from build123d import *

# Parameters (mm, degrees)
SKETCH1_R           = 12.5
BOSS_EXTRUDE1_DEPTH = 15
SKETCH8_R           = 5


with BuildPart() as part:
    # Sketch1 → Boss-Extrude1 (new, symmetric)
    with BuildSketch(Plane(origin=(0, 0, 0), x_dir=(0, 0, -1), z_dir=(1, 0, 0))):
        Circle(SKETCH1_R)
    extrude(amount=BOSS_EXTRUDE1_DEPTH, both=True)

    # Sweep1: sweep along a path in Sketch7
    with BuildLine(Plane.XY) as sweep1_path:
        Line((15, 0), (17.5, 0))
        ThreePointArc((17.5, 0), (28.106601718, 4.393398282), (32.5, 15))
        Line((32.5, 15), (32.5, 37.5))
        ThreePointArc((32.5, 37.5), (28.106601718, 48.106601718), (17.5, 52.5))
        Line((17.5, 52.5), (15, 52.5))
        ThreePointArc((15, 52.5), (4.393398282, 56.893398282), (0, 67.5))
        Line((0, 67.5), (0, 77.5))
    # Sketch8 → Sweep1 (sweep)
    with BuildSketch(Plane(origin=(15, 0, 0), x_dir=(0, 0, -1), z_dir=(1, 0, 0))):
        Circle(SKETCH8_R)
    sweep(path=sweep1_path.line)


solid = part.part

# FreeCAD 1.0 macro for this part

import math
import FreeCAD as App
import Part
import Sketcher

doc = App.newDocument("Part")
body = doc.addObject("PartDesign::Body", "Body")

# Sketch on YZ plane
sketch1 = body.newObject("Sketcher::SketchObject", "Sketch")
sketch1.AttachmentSupport = (doc.getObject("YZ_Plane"), [""])
sketch1.MapMode = "FlatFace"
sketch1.addGeometry(Part.Circle(App.Vector(0, 0, 0), App.Vector(0, 0, 1), 12), False)
sketch1.addConstraint(Sketcher.Constraint("Coincident", 0, 3, -1, 1))
sketch1.addConstraint(Sketcher.Constraint("Diameter", 0, 25.0))
pad1 = body.newObject("PartDesign::Pad", "Pad")
pad1.Profile = sketch1
pad1.Length = 30
pad1.Midplane = True

# Sketch on YZ plane
sketch2 = body.newObject("Sketcher::SketchObject", "Sketch001")
sketch2.AttachmentSupport = (doc.getObject("YZ_Plane"), [""])
sketch2.MapMode = "FlatFace"
sketch2.AttachmentOffset = App.Placement(App.Vector(0, 0, 15), App.Rotation())
sketch2.addGeometry(Part.Circle(App.Vector(0, 0, 0), App.Vector(0, 0, 1), 5), False)
sketch2.addConstraint(Sketcher.Constraint("Coincident", 0, 3, -1, 1))
sketch2.addConstraint(Sketcher.Constraint("Diameter", 0, 10.0))

# Sketch on XY plane
sketch3 = body.newObject("Sketcher::SketchObject", "Sketch002")
sketch3.AttachmentSupport = (doc.getObject("XY_Plane"), [""])
sketch3.MapMode = "FlatFace"
sketch3.addGeometry(Part.LineSegment(App.Vector(15, 0, 0), App.Vector(17.5, 0, 0)), False)
sketch3.addGeometry(Part.ArcOfCircle(Part.Circle(App.Vector(17.5, 15, 0), App.Vector(0, 0, 1), 15), math.radians(-90), math.radians(0)), False)
sketch3.addGeometry(Part.LineSegment(App.Vector(32.5, 15, 0), App.Vector(32.5, 37.5, 0)), False)
sketch3.addGeometry(Part.ArcOfCircle(Part.Circle(App.Vector(17.5, 37.5, 0), App.Vector(0, 0, 1), 15), math.radians(0), math.radians(90)), False)
sketch3.addGeometry(Part.LineSegment(App.Vector(17.5, 52.5, 0), App.Vector(15, 52.5, 0)), False)
sketch3.addGeometry(Part.ArcOfCircle(Part.Circle(App.Vector(15, 67.5, 0), App.Vector(0, 0, 1), 15), math.radians(180), math.radians(270)), False)
sketch3.addGeometry(Part.LineSegment(App.Vector(0, 67.5, 0), App.Vector(0, 77.5, 0)), False)
sketch3.addConstraint(Sketcher.Constraint("Tangent", 0, 2, 1, 1))
sketch3.addConstraint(Sketcher.Constraint("Tangent", 1, 2, 2, 1))
sketch3.addConstraint(Sketcher.Constraint("Tangent", 2, 2, 3, 1))
sketch3.addConstraint(Sketcher.Constraint("Tangent", 3, 2, 4, 1))
sketch3.addConstraint(Sketcher.Constraint("Tangent", 4, 2, 5, 2))
sketch3.addConstraint(Sketcher.Constraint("Tangent", 5, 1, 6, 1))
sketch3.addConstraint(Sketcher.Constraint("Horizontal", 0))
sketch3.addConstraint(Sketcher.Constraint("Vertical", 2))
sketch3.addConstraint(Sketcher.Constraint("Horizontal", 4))
sketch3.addConstraint(Sketcher.Constraint("Vertical", 6))
sketch3.addConstraint(Sketcher.Constraint("Equal", 1, 3))
sketch3.addConstraint(Sketcher.Constraint("Equal", 3, 5))
sketch3.addConstraint(Sketcher.Constraint("PointOnObject", 0, 1, -1))
sketch3.addConstraint(Sketcher.Constraint("PointOnObject", 5, 1, -2))
sketch3.addConstraint(Sketcher.Constraint("Vertical", 5, 3, 0, 1))
sketch3.addConstraint(Sketcher.Constraint("Radius", 1, 15.0))
sketch3.addConstraint(Sketcher.Constraint("DistanceY", 6, 1, 6, 2, 10.0))
sketch3.addConstraint(Sketcher.Constraint("DistanceX", 0, 1, 0, 2, 2.5))
sketch3.addConstraint(Sketcher.Constraint("DistanceY", 2, 1, 2, 2, 22.5))
doc.recompute()

additivepipe = body.newObject("PartDesign::AdditivePipe", "AdditivePipe")
additivepipe.Profile = sketch2
additivepipe.Spine = (sketch3, ["Edge1", "Edge2", "Edge3", "Edge4", "Edge5", "Edge6", "Edge7"])

doc.recompute()
